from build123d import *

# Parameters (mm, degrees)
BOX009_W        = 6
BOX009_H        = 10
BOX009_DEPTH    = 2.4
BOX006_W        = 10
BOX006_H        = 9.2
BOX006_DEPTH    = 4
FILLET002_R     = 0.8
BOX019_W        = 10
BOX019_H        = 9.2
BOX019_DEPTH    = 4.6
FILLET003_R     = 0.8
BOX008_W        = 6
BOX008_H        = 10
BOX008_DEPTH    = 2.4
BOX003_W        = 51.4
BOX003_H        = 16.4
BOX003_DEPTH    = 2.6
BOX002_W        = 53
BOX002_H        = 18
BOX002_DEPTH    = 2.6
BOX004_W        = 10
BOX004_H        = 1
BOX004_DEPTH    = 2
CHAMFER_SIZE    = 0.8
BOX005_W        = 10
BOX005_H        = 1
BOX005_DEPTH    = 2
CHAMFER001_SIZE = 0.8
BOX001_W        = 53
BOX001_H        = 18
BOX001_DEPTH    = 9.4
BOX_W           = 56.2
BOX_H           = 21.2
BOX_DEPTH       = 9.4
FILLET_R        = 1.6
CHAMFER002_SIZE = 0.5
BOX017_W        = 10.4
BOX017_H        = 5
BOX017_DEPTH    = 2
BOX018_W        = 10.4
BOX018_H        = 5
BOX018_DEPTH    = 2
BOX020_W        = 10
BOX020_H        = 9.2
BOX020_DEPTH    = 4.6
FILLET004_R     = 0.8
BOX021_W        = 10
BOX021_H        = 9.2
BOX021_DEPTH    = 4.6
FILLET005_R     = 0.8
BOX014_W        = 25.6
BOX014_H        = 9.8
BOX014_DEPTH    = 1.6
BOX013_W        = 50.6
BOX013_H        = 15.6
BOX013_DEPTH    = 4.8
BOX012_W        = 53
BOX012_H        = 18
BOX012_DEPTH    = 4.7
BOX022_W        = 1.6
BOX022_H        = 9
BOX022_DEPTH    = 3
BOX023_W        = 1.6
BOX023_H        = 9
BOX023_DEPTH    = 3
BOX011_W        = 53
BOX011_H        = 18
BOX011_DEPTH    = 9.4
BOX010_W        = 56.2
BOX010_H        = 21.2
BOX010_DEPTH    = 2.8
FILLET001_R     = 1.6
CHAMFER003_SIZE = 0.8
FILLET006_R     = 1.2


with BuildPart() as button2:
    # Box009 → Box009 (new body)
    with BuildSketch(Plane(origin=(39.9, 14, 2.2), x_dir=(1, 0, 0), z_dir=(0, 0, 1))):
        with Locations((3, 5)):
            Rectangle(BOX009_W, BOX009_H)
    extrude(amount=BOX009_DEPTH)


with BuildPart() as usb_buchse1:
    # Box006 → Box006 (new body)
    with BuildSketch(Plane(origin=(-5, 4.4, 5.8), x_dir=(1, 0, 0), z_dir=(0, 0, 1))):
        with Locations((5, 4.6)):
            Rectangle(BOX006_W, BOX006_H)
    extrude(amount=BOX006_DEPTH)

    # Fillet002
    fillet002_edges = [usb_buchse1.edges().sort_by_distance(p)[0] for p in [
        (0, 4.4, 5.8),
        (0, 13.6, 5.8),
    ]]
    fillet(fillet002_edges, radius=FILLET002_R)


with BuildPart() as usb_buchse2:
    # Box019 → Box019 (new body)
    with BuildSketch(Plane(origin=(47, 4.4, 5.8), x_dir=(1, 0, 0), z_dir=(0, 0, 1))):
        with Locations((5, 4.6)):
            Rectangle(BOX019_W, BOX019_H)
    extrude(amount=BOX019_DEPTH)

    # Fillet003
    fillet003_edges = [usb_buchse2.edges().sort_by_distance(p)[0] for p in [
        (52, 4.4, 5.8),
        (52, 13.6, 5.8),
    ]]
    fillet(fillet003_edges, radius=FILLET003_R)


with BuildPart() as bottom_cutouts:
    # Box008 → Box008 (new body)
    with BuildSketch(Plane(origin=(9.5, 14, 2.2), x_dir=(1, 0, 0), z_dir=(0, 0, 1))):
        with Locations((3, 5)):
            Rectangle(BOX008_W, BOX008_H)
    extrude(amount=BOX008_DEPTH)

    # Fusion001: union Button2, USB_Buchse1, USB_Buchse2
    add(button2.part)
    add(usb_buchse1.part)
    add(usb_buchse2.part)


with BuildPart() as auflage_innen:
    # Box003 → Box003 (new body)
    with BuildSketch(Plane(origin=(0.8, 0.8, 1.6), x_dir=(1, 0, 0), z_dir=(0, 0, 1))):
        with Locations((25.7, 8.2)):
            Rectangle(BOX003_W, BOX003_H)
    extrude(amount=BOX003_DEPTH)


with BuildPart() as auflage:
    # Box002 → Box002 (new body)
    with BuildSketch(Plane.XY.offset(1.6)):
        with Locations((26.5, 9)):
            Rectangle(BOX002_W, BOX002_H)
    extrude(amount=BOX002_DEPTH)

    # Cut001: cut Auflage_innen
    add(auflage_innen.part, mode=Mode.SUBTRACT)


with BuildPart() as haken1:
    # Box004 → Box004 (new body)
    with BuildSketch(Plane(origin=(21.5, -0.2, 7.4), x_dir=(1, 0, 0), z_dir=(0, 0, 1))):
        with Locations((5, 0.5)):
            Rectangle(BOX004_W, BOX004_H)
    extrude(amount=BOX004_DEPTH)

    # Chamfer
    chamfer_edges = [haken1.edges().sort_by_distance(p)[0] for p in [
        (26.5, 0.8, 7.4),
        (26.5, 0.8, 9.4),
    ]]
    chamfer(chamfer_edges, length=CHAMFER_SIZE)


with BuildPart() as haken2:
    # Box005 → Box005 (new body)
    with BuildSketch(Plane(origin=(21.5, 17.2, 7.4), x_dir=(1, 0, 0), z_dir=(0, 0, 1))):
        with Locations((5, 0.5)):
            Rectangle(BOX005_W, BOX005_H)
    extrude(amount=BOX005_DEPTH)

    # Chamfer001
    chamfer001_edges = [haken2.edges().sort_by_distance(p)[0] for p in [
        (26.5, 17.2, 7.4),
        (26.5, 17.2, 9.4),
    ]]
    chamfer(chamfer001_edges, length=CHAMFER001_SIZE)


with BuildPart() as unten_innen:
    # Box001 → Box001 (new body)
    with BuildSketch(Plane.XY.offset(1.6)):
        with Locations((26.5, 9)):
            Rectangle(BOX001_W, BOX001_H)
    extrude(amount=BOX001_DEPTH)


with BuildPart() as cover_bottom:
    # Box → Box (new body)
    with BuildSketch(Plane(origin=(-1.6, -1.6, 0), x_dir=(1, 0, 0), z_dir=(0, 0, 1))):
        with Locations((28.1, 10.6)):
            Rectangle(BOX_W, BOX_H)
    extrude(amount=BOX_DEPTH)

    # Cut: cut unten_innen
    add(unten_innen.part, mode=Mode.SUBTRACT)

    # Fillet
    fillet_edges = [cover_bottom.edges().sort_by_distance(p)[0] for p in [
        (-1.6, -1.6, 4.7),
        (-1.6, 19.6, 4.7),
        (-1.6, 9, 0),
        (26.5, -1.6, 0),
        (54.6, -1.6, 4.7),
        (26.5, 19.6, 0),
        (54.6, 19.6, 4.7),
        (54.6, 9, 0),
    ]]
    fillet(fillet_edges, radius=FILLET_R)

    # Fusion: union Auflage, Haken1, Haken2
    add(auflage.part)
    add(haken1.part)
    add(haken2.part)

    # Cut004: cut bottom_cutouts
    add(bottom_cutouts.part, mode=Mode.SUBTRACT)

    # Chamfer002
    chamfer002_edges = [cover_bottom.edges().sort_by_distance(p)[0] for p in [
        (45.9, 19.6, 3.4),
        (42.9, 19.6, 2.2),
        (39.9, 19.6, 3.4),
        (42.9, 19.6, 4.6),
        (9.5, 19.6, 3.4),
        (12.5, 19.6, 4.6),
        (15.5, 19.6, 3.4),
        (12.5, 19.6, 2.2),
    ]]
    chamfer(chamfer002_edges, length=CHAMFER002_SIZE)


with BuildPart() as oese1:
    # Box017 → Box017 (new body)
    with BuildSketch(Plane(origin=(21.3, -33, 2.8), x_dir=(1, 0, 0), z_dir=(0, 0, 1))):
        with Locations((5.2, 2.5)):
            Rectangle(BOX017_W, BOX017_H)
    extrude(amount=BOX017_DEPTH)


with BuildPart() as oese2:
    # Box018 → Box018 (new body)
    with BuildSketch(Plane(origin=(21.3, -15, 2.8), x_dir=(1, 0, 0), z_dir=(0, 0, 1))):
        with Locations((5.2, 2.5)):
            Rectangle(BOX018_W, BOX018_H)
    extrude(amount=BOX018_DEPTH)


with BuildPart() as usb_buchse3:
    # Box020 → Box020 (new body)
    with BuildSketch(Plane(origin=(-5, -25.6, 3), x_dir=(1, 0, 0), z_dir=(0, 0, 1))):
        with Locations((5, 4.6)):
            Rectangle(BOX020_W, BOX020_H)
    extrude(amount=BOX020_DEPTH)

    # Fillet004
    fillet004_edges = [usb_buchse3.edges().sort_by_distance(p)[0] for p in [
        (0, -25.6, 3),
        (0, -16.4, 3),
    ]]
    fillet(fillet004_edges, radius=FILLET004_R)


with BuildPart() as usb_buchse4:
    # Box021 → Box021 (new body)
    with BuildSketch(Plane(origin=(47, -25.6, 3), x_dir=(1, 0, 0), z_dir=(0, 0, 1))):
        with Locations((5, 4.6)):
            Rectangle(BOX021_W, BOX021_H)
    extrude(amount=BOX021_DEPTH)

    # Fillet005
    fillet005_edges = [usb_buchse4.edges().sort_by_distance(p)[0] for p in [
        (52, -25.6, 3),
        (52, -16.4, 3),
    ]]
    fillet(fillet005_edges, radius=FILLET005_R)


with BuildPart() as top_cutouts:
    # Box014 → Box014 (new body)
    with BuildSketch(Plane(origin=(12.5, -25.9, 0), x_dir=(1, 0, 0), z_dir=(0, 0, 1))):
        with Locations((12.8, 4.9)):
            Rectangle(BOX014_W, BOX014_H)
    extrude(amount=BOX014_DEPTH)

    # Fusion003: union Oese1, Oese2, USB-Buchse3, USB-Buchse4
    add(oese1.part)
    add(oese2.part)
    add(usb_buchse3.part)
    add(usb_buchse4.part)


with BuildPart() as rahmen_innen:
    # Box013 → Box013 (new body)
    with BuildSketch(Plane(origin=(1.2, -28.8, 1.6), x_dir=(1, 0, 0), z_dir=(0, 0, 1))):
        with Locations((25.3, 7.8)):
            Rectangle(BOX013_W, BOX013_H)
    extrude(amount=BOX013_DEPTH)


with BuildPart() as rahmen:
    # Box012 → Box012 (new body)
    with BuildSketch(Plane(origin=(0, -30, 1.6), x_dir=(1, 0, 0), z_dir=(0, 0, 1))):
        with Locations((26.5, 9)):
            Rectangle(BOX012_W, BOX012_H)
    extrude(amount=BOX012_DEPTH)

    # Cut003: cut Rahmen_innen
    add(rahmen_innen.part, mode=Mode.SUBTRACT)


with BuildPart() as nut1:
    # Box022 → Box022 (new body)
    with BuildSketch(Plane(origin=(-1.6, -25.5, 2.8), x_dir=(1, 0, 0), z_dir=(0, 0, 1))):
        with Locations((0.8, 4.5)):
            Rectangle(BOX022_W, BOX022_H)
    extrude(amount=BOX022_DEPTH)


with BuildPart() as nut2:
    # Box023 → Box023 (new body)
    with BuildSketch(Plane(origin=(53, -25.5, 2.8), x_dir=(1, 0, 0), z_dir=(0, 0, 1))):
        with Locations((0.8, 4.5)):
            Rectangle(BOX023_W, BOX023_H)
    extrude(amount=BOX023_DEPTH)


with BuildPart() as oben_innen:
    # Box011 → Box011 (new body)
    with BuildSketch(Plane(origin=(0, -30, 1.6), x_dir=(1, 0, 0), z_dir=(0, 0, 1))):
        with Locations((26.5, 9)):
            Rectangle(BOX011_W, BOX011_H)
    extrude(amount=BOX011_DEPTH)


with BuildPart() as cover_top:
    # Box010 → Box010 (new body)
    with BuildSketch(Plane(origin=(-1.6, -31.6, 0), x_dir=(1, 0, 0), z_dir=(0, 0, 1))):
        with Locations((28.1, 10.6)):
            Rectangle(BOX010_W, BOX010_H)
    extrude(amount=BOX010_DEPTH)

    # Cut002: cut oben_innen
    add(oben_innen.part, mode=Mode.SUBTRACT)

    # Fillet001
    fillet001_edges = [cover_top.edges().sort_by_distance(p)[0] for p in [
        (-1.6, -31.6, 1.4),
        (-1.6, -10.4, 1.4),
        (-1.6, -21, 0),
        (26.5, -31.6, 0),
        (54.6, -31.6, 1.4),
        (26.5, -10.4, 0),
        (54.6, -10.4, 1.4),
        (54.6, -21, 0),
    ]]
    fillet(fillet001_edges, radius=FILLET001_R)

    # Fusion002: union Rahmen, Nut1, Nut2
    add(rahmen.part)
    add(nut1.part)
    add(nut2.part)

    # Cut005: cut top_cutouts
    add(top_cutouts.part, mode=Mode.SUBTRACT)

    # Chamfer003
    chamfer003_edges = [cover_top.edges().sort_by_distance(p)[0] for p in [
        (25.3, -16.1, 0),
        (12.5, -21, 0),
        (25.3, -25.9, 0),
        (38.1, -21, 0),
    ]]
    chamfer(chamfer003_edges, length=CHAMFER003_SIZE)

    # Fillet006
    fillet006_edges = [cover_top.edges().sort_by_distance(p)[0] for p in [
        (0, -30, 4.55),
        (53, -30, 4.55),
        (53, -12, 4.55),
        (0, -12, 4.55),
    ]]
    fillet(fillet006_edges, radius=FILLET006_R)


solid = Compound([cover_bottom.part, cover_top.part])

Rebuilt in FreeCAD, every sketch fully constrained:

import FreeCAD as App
import Part
import Sketcher

V = App.Vector


def edges_at(feature, points):
    """Names of the edges that pass closest to the given points."""
    edges = feature.Shape.Edges
    near = lambda p: min(range(len(edges)), key=lambda i: edges[i].distToShape(Part.Vertex(*p))[0])
    return sorted({f"Edge{near(p) + 1}" for p in points})


def add_polygon(sketch, points):
    """Adds a closed chain of lines whose ends are joined by coincident constraints."""
    first, n = sketch.GeometryCount, len(points)
    for a, b in zip(points, points[1:] + points[:1]):
        sketch.addGeometry(Part.LineSegment(App.Vector(*a, 0), App.Vector(*b, 0)), False)
    for i in range(n):
        sketch.addConstraint(Sketcher.Constraint("Coincident", first + i, 2, first + (i + 1) % n, 1))

doc = App.newDocument("Part")
params = doc.addObject("Spreadsheet::Sheet", "Params")
for row, (alias, value) in enumerate([
    ("sketch1_width", "6 mm"),
    ("sketch1_height", "10 mm"),
    ("pad1_length", "2.4 mm"),
    ("sketch2_width", "10 mm"),
    ("sketch2_height", "9.2 mm"),
    ("pad2_length", "4 mm"),
    ("fillet_radius", "0.8 mm"),
    ("sketch3_width", "10 mm"),
    ("sketch3_height", "9.2 mm"),
    ("pad3_length", "4.6 mm"),
    ("fillet2_radius", "0.8 mm"),
    ("sketch4_width", "6 mm"),
    ("sketch4_height", "10 mm"),
    ("pad4_length", "2.4 mm"),
    ("sketch5_width", "51.4 mm"),
    ("sketch5_height", "16.4 mm"),
    ("pad5_length", "2.6 mm"),
    ("sketch6_width", "53 mm"),
    ("sketch6_height", "18 mm"),
    ("pad6_length", "2.6 mm"),
    ("sketch7_width", "10 mm"),
    ("sketch7_height", "1 mm"),
    ("pad7_length", "2 mm"),
    ("chamfer_size", "0.8 mm"),
    ("sketch8_width", "10 mm"),
    ("sketch8_height", "1 mm"),
    ("pad8_length", "2 mm"),
    ("chamfer2_size", "0.8 mm"),
    ("sketch9_width", "53 mm"),
    ("sketch9_height", "18 mm"),
    ("pad9_length", "9.4 mm"),
    ("sketch10_width", "56.2 mm"),
    ("sketch10_height", "21.2 mm"),
    ("pad10_length", "9.4 mm"),
    ("fillet3_radius", "1.6 mm"),
    ("chamfer3_size", "0.5 mm"),
    ("sketch11_height", "5 mm"),
    ("sketch11_width", "10.4 mm"),
    ("pad11_length", "2 mm"),
    ("sketch12_height", "5 mm"),
    ("sketch12_width", "10.4 mm"),
    ("pad12_length", "2 mm"),
    ("sketch13_width", "10 mm"),
    ("sketch13_height", "9.2 mm"),
    ("pad13_length", "4.6 mm"),
    ("fillet4_radius", "0.8 mm"),
    ("sketch14_width", "10 mm"),
    ("sketch14_height", "9.2 mm"),
    ("pad14_length", "4.6 mm"),
    ("fillet5_radius", "0.8 mm"),
    ("sketch15_width", "25.6 mm"),
    ("sketch15_height", "9.8 mm"),
    ("pad15_length", "1.6 mm"),
    ("sketch16_width", "50.6 mm"),
    ("sketch16_height", "15.6 mm"),
    ("pad16_length", "4.8 mm"),
    ("sketch17_width", "53 mm"),
    ("sketch17_height", "18 mm"),
    ("pad17_length", "4.7 mm"),
    ("sketch18_height", "9 mm"),
    ("sketch18_width", "1.6 mm"),
    ("pad18_length", "3 mm"),
    ("sketch19_height", "9 mm"),
    ("sketch19_width", "1.6 mm"),
    ("pad19_length", "3 mm"),
    ("sketch20_width", "53 mm"),
    ("sketch20_height", "18 mm"),
    ("pad20_length", "9.4 mm"),
    ("sketch21_width", "56.2 mm"),
    ("sketch21_height", "21.2 mm"),
    ("pad21_length", "2.8 mm"),
    ("fillet6_radius", "1.6 mm"),
    ("chamfer4_size", "0.8 mm"),
    ("fillet7_radius", "1.2 mm"),
], start=1):
    params.set(f"A{row}", alias)
    params.set(f"B{row}", "=" + value)
    params.setAlias(f"B{row}", alias)

body = doc.addObject("PartDesign::Body", "Body")

# Sketch on XY plane
sketch1 = doc.addObject("Sketcher::SketchObject", "Sketch")
body.addObject(sketch1)
sketch1.AttachmentSupport = (doc.XY_Plane, [""])
sketch1.MapMode = "FlatFace"
sketch1.AttachmentOffset = App.Placement(V(0, 0, 2.2), App.Rotation())
add_polygon(sketch1, [(39.9, 24), (39.9, 14), (45.9, 14), (45.9, 24)])  # lines 0-3
sketch1.addConstraint(Sketcher.Constraint("Vertical", 0))
sketch1.addConstraint(Sketcher.Constraint("Horizontal", 1))
sketch1.addConstraint(Sketcher.Constraint("Vertical", 2))
sketch1.addConstraint(Sketcher.Constraint("Horizontal", 3))
sketch1.addConstraint(Sketcher.Constraint("DistanceX", 1, 1, 1, 2, 6.0))
sketch1.addConstraint(Sketcher.Constraint("DistanceY", 0, 2, 0, 1, 10.0))
sketch1.addConstraint(Sketcher.Constraint("DistanceY", -1, 1, 0, 2, 14.0))
sketch1.addConstraint(Sketcher.Constraint("DistanceX", -1, 1, 0, 2, 39.9))
sketch1.setExpression("Constraints[8]", "Params.sketch1_width")
sketch1.setExpression("Constraints[9]", "Params.sketch1_height")
pad1 = doc.addObject("PartDesign::Pad", "Pad")
body.addObject(pad1)
pad1.Profile = sketch1
pad1.setExpression("Length", "Params.pad1_length")
body2 = doc.addObject("PartDesign::Body", "Body001")

# Sketch on XY plane
sketch2 = doc.addObject("Sketcher::SketchObject", "Sketch001")
body2.addObject(sketch2)
sketch2.AttachmentSupport = (doc.getObject("XY_Plane001"), [""])
sketch2.MapMode = "FlatFace"
sketch2.AttachmentOffset = App.Placement(V(0, 0, 5.8), App.Rotation())
add_polygon(sketch2, [(-5, 13.6), (-5, 4.4), (5, 4.4), (5, 13.6)])  # lines 0-3
sketch2.addConstraint(Sketcher.Constraint("Vertical", 0))
sketch2.addConstraint(Sketcher.Constraint("Horizontal", 1))
sketch2.addConstraint(Sketcher.Constraint("Vertical", 2))
sketch2.addConstraint(Sketcher.Constraint("Horizontal", 3))
sketch2.addConstraint(Sketcher.Constraint("DistanceX", 1, 1, 1, 2, 10.0))
sketch2.addConstraint(Sketcher.Constraint("DistanceY", 0, 2, 0, 1, 9.2))
sketch2.addConstraint(Sketcher.Constraint("DistanceX", 0, 2, -1, 1, 5.0))
sketch2.addConstraint(Sketcher.Constraint("DistanceY", -1, 1, 0, 2, 4.4))
sketch2.setExpression("Constraints[8]", "Params.sketch2_width")
sketch2.setExpression("Constraints[9]", "Params.sketch2_height")
pad2 = doc.addObject("PartDesign::Pad", "Pad001")
body2.addObject(pad2)
pad2.Profile = sketch2
pad2.setExpression("Length", "Params.pad2_length")
doc.recompute()

fillet = doc.addObject("PartDesign::Fillet", "Fillet")
body2.addObject(fillet)
fillet.Base = (pad2, edges_at(pad2, [(0, 4.4, 5.8), (0, 13.6, 5.8)]))
fillet.setExpression("Radius", "Params.fillet_radius")
body3 = doc.addObject("PartDesign::Body", "Body002")

# Sketch on XY plane
sketch3 = doc.addObject("Sketcher::SketchObject", "Sketch002")
body3.addObject(sketch3)
sketch3.AttachmentSupport = (doc.getObject("XY_Plane002"), [""])
sketch3.MapMode = "FlatFace"
sketch3.AttachmentOffset = App.Placement(V(0, 0, 5.8), App.Rotation())
add_polygon(sketch3, [(47, 13.6), (47, 4.4), (57, 4.4), (57, 13.6)])  # lines 0-3
sketch3.addConstraint(Sketcher.Constraint("Vertical", 0))
sketch3.addConstraint(Sketcher.Constraint("Horizontal", 1))
sketch3.addConstraint(Sketcher.Constraint("Vertical", 2))
sketch3.addConstraint(Sketcher.Constraint("Horizontal", 3))
sketch3.addConstraint(Sketcher.Constraint("DistanceX", 1, 1, 1, 2, 10.0))
sketch3.addConstraint(Sketcher.Constraint("DistanceY", 0, 2, 0, 1, 9.2))
sketch3.addConstraint(Sketcher.Constraint("DistanceX", -1, 1, 0, 2, 47.0))
sketch3.addConstraint(Sketcher.Constraint("DistanceY", -1, 1, 0, 2, 4.4))
sketch3.setExpression("Constraints[8]", "Params.sketch3_width")
sketch3.setExpression("Constraints[9]", "Params.sketch3_height")
pad3 = doc.addObject("PartDesign::Pad", "Pad002")
body3.addObject(pad3)
pad3.Profile = sketch3
pad3.setExpression("Length", "Params.pad3_length")
doc.recompute()

fillet2 = doc.addObject("PartDesign::Fillet", "Fillet001")
body3.addObject(fillet2)
fillet2.Base = (pad3, edges_at(pad3, [(52, 4.4, 5.8), (52, 13.6, 5.8)]))
fillet2.setExpression("Radius", "Params.fillet2_radius")
body4 = doc.addObject("PartDesign::Body", "Body003")
body4.AllowCompound = True

# Sketch on XY plane
sketch4 = doc.addObject("Sketcher::SketchObject", "Sketch003")
body4.addObject(sketch4)
sketch4.AttachmentSupport = (doc.getObject("XY_Plane003"), [""])
sketch4.MapMode = "FlatFace"
sketch4.AttachmentOffset = App.Placement(V(0, 0, 2.2), App.Rotation())
add_polygon(sketch4, [(9.5, 24), (9.5, 14), (15.5, 14), (15.5, 24)])  # lines 0-3
sketch4.addConstraint(Sketcher.Constraint("Vertical", 0))
sketch4.addConstraint(Sketcher.Constraint("Horizontal", 1))
sketch4.addConstraint(Sketcher.Constraint("Vertical", 2))
sketch4.addConstraint(Sketcher.Constraint("Horizontal", 3))
sketch4.addConstraint(Sketcher.Constraint("DistanceX", 1, 1, 1, 2, 6.0))
sketch4.addConstraint(Sketcher.Constraint("DistanceY", 0, 2, 0, 1, 10.0))
sketch4.addConstraint(Sketcher.Constraint("DistanceY", -1, 1, 0, 2, 14.0))
sketch4.addConstraint(Sketcher.Constraint("DistanceX", -1, 1, 0, 2, 9.5))
sketch4.setExpression("Constraints[8]", "Params.sketch4_width")
sketch4.setExpression("Constraints[9]", "Params.sketch4_height")
pad4 = doc.addObject("PartDesign::Pad", "Pad003")
body4.addObject(pad4)
pad4.Profile = sketch4
pad4.setExpression("Length", "Params.pad4_length")
doc.recompute()

boolean = doc.addObject("PartDesign::Boolean", "Boolean")
body4.addObject(boolean)
boolean.Type = "Fuse"
boolean.addObjects([body])
doc.recompute()

boolean2 = doc.addObject("PartDesign::Boolean", "Boolean001")
body4.addObject(boolean2)
boolean2.Type = "Fuse"
boolean2.addObjects([body2])
doc.recompute()

boolean3 = doc.addObject("PartDesign::Boolean", "Boolean002")
body4.addObject(boolean3)
boolean3.Type = "Fuse"
boolean3.addObjects([body3])
body5 = doc.addObject("PartDesign::Body", "Body004")

# Sketch on XY plane
sketch5 = doc.addObject("Sketcher::SketchObject", "Sketch004")
body5.addObject(sketch5)
sketch5.AttachmentSupport = (doc.getObject("XY_Plane004"), [""])
sketch5.MapMode = "FlatFace"
sketch5.AttachmentOffset = App.Placement(V(0, 0, 1.6), App.Rotation())
add_polygon(sketch5, [(0.8, 17.2), (0.8, 0.8), (52.2, 0.8), (52.2, 17.2)])  # lines 0-3
sketch5.addConstraint(Sketcher.Constraint("Vertical", 0))
sketch5.addConstraint(Sketcher.Constraint("Horizontal", 1))
sketch5.addConstraint(Sketcher.Constraint("Vertical", 2))
sketch5.addConstraint(Sketcher.Constraint("Horizontal", 3))
sketch5.addConstraint(Sketcher.Constraint("DistanceX", 1, 1, 1, 2, 51.4))
sketch5.addConstraint(Sketcher.Constraint("DistanceY", 0, 2, 0, 1, 16.4))
sketch5.addConstraint(Sketcher.Constraint("DistanceX", -1, 1, 0, 2, 0.8))
sketch5.addConstraint(Sketcher.Constraint("DistanceY", -1, 1, 0, 2, 0.8))
sketch5.setExpression("Constraints[8]", "Params.sketch5_width")
sketch5.setExpression("Constraints[9]", "Params.sketch5_height")
pad5 = doc.addObject("PartDesign::Pad", "Pad004")
body5.addObject(pad5)
pad5.Profile = sketch5
pad5.setExpression("Length", "Params.pad5_length")
body6 = doc.addObject("PartDesign::Body", "Body005")

# Sketch on XY plane
sketch6 = doc.addObject("Sketcher::SketchObject", "Sketch005")
body6.addObject(sketch6)
sketch6.AttachmentSupport = (doc.getObject("XY_Plane005"), [""])
sketch6.MapMode = "FlatFace"
sketch6.AttachmentOffset = App.Placement(V(0, 0, 1.6), App.Rotation())
add_polygon(sketch6, [(0, 18), (0, 0), (53, 0), (53, 18)])  # lines 0-3
sketch6.addConstraint(Sketcher.Constraint("Vertical", 0))
sketch6.addConstraint(Sketcher.Constraint("Horizontal", 1))
sketch6.addConstraint(Sketcher.Constraint("Vertical", 2))
sketch6.addConstraint(Sketcher.Constraint("Horizontal", 3))
sketch6.addConstraint(Sketcher.Constraint("Coincident", 0, 2, -1, 1))
sketch6.addConstraint(Sketcher.Constraint("DistanceX", 1, 1, 1, 2, 53.0))
sketch6.addConstraint(Sketcher.Constraint("DistanceY", 0, 2, 0, 1, 18.0))
sketch6.setExpression("Constraints[9]", "Params.sketch6_width")
sketch6.setExpression("Constraints[10]", "Params.sketch6_height")
pad6 = doc.addObject("PartDesign::Pad", "Pad005")
body6.addObject(pad6)
pad6.Profile = sketch6
pad6.setExpression("Length", "Params.pad6_length")
doc.recompute()

boolean4 = doc.addObject("PartDesign::Boolean", "Boolean003")
body6.addObject(boolean4)
boolean4.Type = "Cut"
boolean4.addObjects([body5])
body7 = doc.addObject("PartDesign::Body", "Body006")

# Sketch on XY plane
sketch7 = doc.addObject("Sketcher::SketchObject", "Sketch006")
body7.addObject(sketch7)
sketch7.AttachmentSupport = (doc.getObject("XY_Plane006"), [""])
sketch7.MapMode = "FlatFace"
sketch7.AttachmentOffset = App.Placement(V(0, 0, 7.4), App.Rotation())
add_polygon(sketch7, [(21.5, 0.8), (21.5, -0.2), (31.5, -0.2), (31.5, 0.8)])  # lines 0-3
sketch7.addConstraint(Sketcher.Constraint("Vertical", 0))
sketch7.addConstraint(Sketcher.Constraint("Horizontal", 1))
sketch7.addConstraint(Sketcher.Constraint("Vertical", 2))
sketch7.addConstraint(Sketcher.Constraint("Horizontal", 3))
sketch7.addConstraint(Sketcher.Constraint("DistanceX", 1, 1, 1, 2, 10.0))
sketch7.addConstraint(Sketcher.Constraint("DistanceY", 0, 2, 0, 1, 1.0))
sketch7.addConstraint(Sketcher.Constraint("DistanceX", -1, 1, 0, 2, 21.5))
sketch7.addConstraint(Sketcher.Constraint("DistanceY", 0, 2, -1, 1, 0.2))
sketch7.setExpression("Constraints[8]", "Params.sketch7_width")
sketch7.setExpression("Constraints[9]", "Params.sketch7_height")
pad7 = doc.addObject("PartDesign::Pad", "Pad006")
body7.addObject(pad7)
pad7.Profile = sketch7
pad7.setExpression("Length", "Params.pad7_length")
doc.recompute()

chamfer = doc.addObject("PartDesign::Chamfer", "Chamfer")
body7.addObject(chamfer)
chamfer.Base = (pad7, edges_at(pad7, [(26.5, 0.8, 7.4), (26.5, 0.8, 9.4)]))
chamfer.setExpression("Size", "Params.chamfer_size")
body8 = doc.addObject("PartDesign::Body", "Body007")

# Sketch on XY plane
sketch8 = doc.addObject("Sketcher::SketchObject", "Sketch007")
body8.addObject(sketch8)
sketch8.AttachmentSupport = (doc.getObject("XY_Plane007"), [""])
sketch8.MapMode = "FlatFace"
sketch8.AttachmentOffset = App.Placement(V(0, 0, 7.4), App.Rotation())
add_polygon(sketch8, [(21.5, 18.2), (21.5, 17.2), (31.5, 17.2), (31.5, 18.2)])  # lines 0-3
sketch8.addConstraint(Sketcher.Constraint("Vertical", 0))
sketch8.addConstraint(Sketcher.Constraint("Horizontal", 1))
sketch8.addConstraint(Sketcher.Constraint("Vertical", 2))
sketch8.addConstraint(Sketcher.Constraint("Horizontal", 3))
sketch8.addConstraint(Sketcher.Constraint("DistanceX", 1, 1, 1, 2, 10.0))
sketch8.addConstraint(Sketcher.Constraint("DistanceY", 0, 2, 0, 1, 1.0))
sketch8.addConstraint(Sketcher.Constraint("DistanceX", -1, 1, 0, 2, 21.5))
sketch8.addConstraint(Sketcher.Constraint("DistanceY", -1, 1, 0, 2, 17.2))
sketch8.setExpression("Constraints[8]", "Params.sketch8_width")
sketch8.setExpression("Constraints[9]", "Params.sketch8_height")
pad8 = doc.addObject("PartDesign::Pad", "Pad007")
body8.addObject(pad8)
pad8.Profile = sketch8
pad8.setExpression("Length", "Params.pad8_length")
doc.recompute()

chamfer2 = doc.addObject("PartDesign::Chamfer", "Chamfer001")
body8.addObject(chamfer2)
chamfer2.Base = (pad8, edges_at(pad8, [(26.5, 17.2, 7.4), (26.5, 17.2, 9.4)]))
chamfer2.setExpression("Size", "Params.chamfer2_size")
body9 = doc.addObject("PartDesign::Body", "Body008")

# Sketch on XY plane
sketch9 = doc.addObject("Sketcher::SketchObject", "Sketch008")
body9.addObject(sketch9)
sketch9.AttachmentSupport = (doc.getObject("XY_Plane008"), [""])
sketch9.MapMode = "FlatFace"
sketch9.AttachmentOffset = App.Placement(V(0, 0, 1.6), App.Rotation())
add_polygon(sketch9, [(0, 18), (0, 0), (53, 0), (53, 18)])  # lines 0-3
sketch9.addConstraint(Sketcher.Constraint("Vertical", 0))
sketch9.addConstraint(Sketcher.Constraint("Horizontal", 1))
sketch9.addConstraint(Sketcher.Constraint("Vertical", 2))
sketch9.addConstraint(Sketcher.Constraint("Horizontal", 3))
sketch9.addConstraint(Sketcher.Constraint("Coincident", 0, 2, -1, 1))
sketch9.addConstraint(Sketcher.Constraint("DistanceX", 1, 1, 1, 2, 53.0))
sketch9.addConstraint(Sketcher.Constraint("DistanceY", 0, 2, 0, 1, 18.0))
sketch9.setExpression("Constraints[9]", "Params.sketch9_width")
sketch9.setExpression("Constraints[10]", "Params.sketch9_height")
pad9 = doc.addObject("PartDesign::Pad", "Pad008")
body9.addObject(pad9)
pad9.Profile = sketch9
pad9.setExpression("Length", "Params.pad9_length")
body10 = doc.addObject("PartDesign::Body", "Body009")

# Sketch on XY plane
sketch10 = doc.addObject("Sketcher::SketchObject", "Sketch009")
body10.addObject(sketch10)
sketch10.AttachmentSupport = (doc.getObject("XY_Plane009"), [""])
sketch10.MapMode = "FlatFace"
add_polygon(sketch10, [(-1.6, 19.6), (-1.6, -1.6), (54.6, -1.6), (54.6, 19.6)])  # lines 0-3
sketch10.addConstraint(Sketcher.Constraint("Vertical", 0))
sketch10.addConstraint(Sketcher.Constraint("Horizontal", 1))
sketch10.addConstraint(Sketcher.Constraint("Vertical", 2))
sketch10.addConstraint(Sketcher.Constraint("Horizontal", 3))
sketch10.addConstraint(Sketcher.Constraint("DistanceX", 1, 1, 1, 2, 56.2))
sketch10.addConstraint(Sketcher.Constraint("DistanceY", 0, 2, 0, 1, 21.2))
sketch10.addConstraint(Sketcher.Constraint("DistanceX", 0, 2, -1, 1, 1.6))
sketch10.addConstraint(Sketcher.Constraint("DistanceY", 0, 2, -1, 1, 1.6))
sketch10.setExpression("Constraints[8]", "Params.sketch10_width")
sketch10.setExpression("Constraints[9]", "Params.sketch10_height")
pad10 = doc.addObject("PartDesign::Pad", "Pad009")
body10.addObject(pad10)
pad10.Profile = sketch10
pad10.setExpression("Length", "Params.pad10_length")
doc.recompute()

boolean5 = doc.addObject("PartDesign::Boolean", "Boolean004")
body10.addObject(boolean5)
boolean5.Type = "Cut"
boolean5.addObjects([body9])
doc.recompute()

fillet3 = doc.addObject("PartDesign::Fillet", "Fillet002")
body10.addObject(fillet3)
fillet3.Base = (boolean5, edges_at(boolean5, [
    (-1.6, -1.6, 4.7),
    (-1.6, 19.6, 4.7),
    (-1.6, 9, 0),
    (26.5, -1.6, 0),
    (54.6, -1.6, 4.7),
    (26.5, 19.6, 0),
    (54.6, 19.6, 4.7),
    (54.6, 9, 0),
]))
fillet3.setExpression("Radius", "Params.fillet3_radius")
doc.recompute()

boolean6 = doc.addObject("PartDesign::Boolean", "Boolean005")
body10.addObject(boolean6)
boolean6.Type = "Fuse"
boolean6.addObjects([body6])
doc.recompute()

boolean7 = doc.addObject("PartDesign::Boolean", "Boolean006")
body10.addObject(boolean7)
boolean7.Type = "Fuse"
boolean7.addObjects([body7])
doc.recompute()

boolean8 = doc.addObject("PartDesign::Boolean", "Boolean007")
body10.addObject(boolean8)
boolean8.Type = "Fuse"
boolean8.addObjects([body8])
doc.recompute()

boolean9 = doc.addObject("PartDesign::Boolean", "Boolean008")
body10.addObject(boolean9)
boolean9.Type = "Cut"
boolean9.addObjects([body4])
doc.recompute()

chamfer3 = doc.addObject("PartDesign::Chamfer", "Chamfer002")
body10.addObject(chamfer3)
chamfer3.Base = (boolean9, edges_at(boolean9, [
    (45.9, 19.6, 3.4),
    (42.9, 19.6, 2.2),
    (39.9, 19.6, 3.4),
    (42.9, 19.6, 4.6),
    (9.5, 19.6, 3.4),
    (12.5, 19.6, 4.6),
    (15.5, 19.6, 3.4),
    (12.5, 19.6, 2.2),
]))
chamfer3.setExpression("Size", "Params.chamfer3_size")
body11 = doc.addObject("PartDesign::Body", "Body010")

# Sketch on XY plane
sketch11 = doc.addObject("Sketcher::SketchObject", "Sketch010")
body11.addObject(sketch11)
sketch11.AttachmentSupport = (doc.getObject("XY_Plane010"), [""])
sketch11.MapMode = "FlatFace"
sketch11.AttachmentOffset = App.Placement(V(0, 0, 2.8), App.Rotation())
add_polygon(sketch11, [(21.3, -28), (21.3, -33), (31.7, -33), (31.7, -28)])  # lines 0-3
sketch11.addConstraint(Sketcher.Constraint("Vertical", 0))
sketch11.addConstraint(Sketcher.Constraint("Horizontal", 1))
sketch11.addConstraint(Sketcher.Constraint("Vertical", 2))
sketch11.addConstraint(Sketcher.Constraint("Horizontal", 3))
sketch11.addConstraint(Sketcher.Constraint("DistanceY", 0, 2, 0, 1, 5.0))
sketch11.addConstraint(Sketcher.Constraint("DistanceX", 1, 1, 1, 2, 10.4))
sketch11.addConstraint(Sketcher.Constraint("DistanceY", 0, 2, -1, 1, 33.0))
sketch11.addConstraint(Sketcher.Constraint("DistanceX", -1, 1, 0, 2, 21.3))
sketch11.setExpression("Constraints[8]", "Params.sketch11_height")
sketch11.setExpression("Constraints[9]", "Params.sketch11_width")
pad11 = doc.addObject("PartDesign::Pad", "Pad010")
body11.addObject(pad11)
pad11.Profile = sketch11
pad11.setExpression("Length", "Params.pad11_length")
body12 = doc.addObject("PartDesign::Body", "Body011")

# Sketch on XY plane
sketch12 = doc.addObject("Sketcher::SketchObject", "Sketch011")
body12.addObject(sketch12)
sketch12.AttachmentSupport = (doc.getObject("XY_Plane011"), [""])
sketch12.MapMode = "FlatFace"
sketch12.AttachmentOffset = App.Placement(V(0, 0, 2.8), App.Rotation())
add_polygon(sketch12, [(21.3, -10), (21.3, -15), (31.7, -15), (31.7, -10)])  # lines 0-3
sketch12.addConstraint(Sketcher.Constraint("Vertical", 0))
sketch12.addConstraint(Sketcher.Constraint("Horizontal", 1))
sketch12.addConstraint(Sketcher.Constraint("Vertical", 2))
sketch12.addConstraint(Sketcher.Constraint("Horizontal", 3))
sketch12.addConstraint(Sketcher.Constraint("DistanceY", 0, 2, 0, 1, 5.0))
sketch12.addConstraint(Sketcher.Constraint("DistanceX", 1, 1, 1, 2, 10.4))
sketch12.addConstraint(Sketcher.Constraint("DistanceY", 0, 2, -1, 1, 15.0))
sketch12.addConstraint(Sketcher.Constraint("DistanceX", -1, 1, 0, 2, 21.3))
sketch12.setExpression("Constraints[8]", "Params.sketch12_height")
sketch12.setExpression("Constraints[9]", "Params.sketch12_width")
pad12 = doc.addObject("PartDesign::Pad", "Pad011")
body12.addObject(pad12)
pad12.Profile = sketch12
pad12.setExpression("Length", "Params.pad12_length")
body13 = doc.addObject("PartDesign::Body", "Body012")

# Sketch on XY plane
sketch13 = doc.addObject("Sketcher::SketchObject", "Sketch012")
body13.addObject(sketch13)
sketch13.AttachmentSupport = (doc.getObject("XY_Plane012"), [""])
sketch13.MapMode = "FlatFace"
sketch13.AttachmentOffset = App.Placement(V(0, 0, 3), App.Rotation())
add_polygon(sketch13, [(-5, -16.4), (-5, -25.6), (5, -25.6), (5, -16.4)])  # lines 0-3
sketch13.addConstraint(Sketcher.Constraint("Vertical", 0))
sketch13.addConstraint(Sketcher.Constraint("Horizontal", 1))
sketch13.addConstraint(Sketcher.Constraint("Vertical", 2))
sketch13.addConstraint(Sketcher.Constraint("Horizontal", 3))
sketch13.addConstraint(Sketcher.Constraint("DistanceX", 1, 1, 1, 2, 10.0))
sketch13.addConstraint(Sketcher.Constraint("DistanceY", 0, 2, 0, 1, 9.2))
sketch13.addConstraint(Sketcher.Constraint("DistanceX", 0, 2, -1, 1, 5.0))
sketch13.addConstraint(Sketcher.Constraint("DistanceY", 0, 2, -1, 1, 25.6))
sketch13.setExpression("Constraints[8]", "Params.sketch13_width")
sketch13.setExpression("Constraints[9]", "Params.sketch13_height")
pad13 = doc.addObject("PartDesign::Pad", "Pad012")
body13.addObject(pad13)
pad13.Profile = sketch13
pad13.setExpression("Length", "Params.pad13_length")
doc.recompute()

fillet4 = doc.addObject("PartDesign::Fillet", "Fillet003")
body13.addObject(fillet4)
fillet4.Base = (pad13, edges_at(pad13, [(0, -25.6, 3), (0, -16.4, 3)]))
fillet4.setExpression("Radius", "Params.fillet4_radius")
body14 = doc.addObject("PartDesign::Body", "Body013")

# Sketch on XY plane
sketch14 = doc.addObject("Sketcher::SketchObject", "Sketch013")
body14.addObject(sketch14)
sketch14.AttachmentSupport = (doc.getObject("XY_Plane013"), [""])
sketch14.MapMode = "FlatFace"
sketch14.AttachmentOffset = App.Placement(V(0, 0, 3), App.Rotation())
add_polygon(sketch14, [(47, -16.4), (47, -25.6), (57, -25.6), (57, -16.4)])  # lines 0-3
sketch14.addConstraint(Sketcher.Constraint("Vertical", 0))
sketch14.addConstraint(Sketcher.Constraint("Horizontal", 1))
sketch14.addConstraint(Sketcher.Constraint("Vertical", 2))
sketch14.addConstraint(Sketcher.Constraint("Horizontal", 3))
sketch14.addConstraint(Sketcher.Constraint("DistanceX", 1, 1, 1, 2, 10.0))
sketch14.addConstraint(Sketcher.Constraint("DistanceY", 0, 2, 0, 1, 9.2))
sketch14.addConstraint(Sketcher.Constraint("DistanceX", -1, 1, 0, 2, 47.0))
sketch14.addConstraint(Sketcher.Constraint("DistanceY", 0, 2, -1, 1, 25.6))
sketch14.setExpression("Constraints[8]", "Params.sketch14_width")
sketch14.setExpression("Constraints[9]", "Params.sketch14_height")
pad14 = doc.addObject("PartDesign::Pad", "Pad013")
body14.addObject(pad14)
pad14.Profile = sketch14
pad14.setExpression("Length", "Params.pad14_length")
doc.recompute()

fillet5 = doc.addObject("PartDesign::Fillet", "Fillet004")
body14.addObject(fillet5)
fillet5.Base = (pad14, edges_at(pad14, [(52, -25.6, 3), (52, -16.4, 3)]))
fillet5.setExpression("Radius", "Params.fillet5_radius")
body15 = doc.addObject("PartDesign::Body", "Body014")
body15.AllowCompound = True

# Sketch on XY plane
sketch15 = doc.addObject("Sketcher::SketchObject", "Sketch014")
body15.addObject(sketch15)
sketch15.AttachmentSupport = (doc.getObject("XY_Plane014"), [""])
sketch15.MapMode = "FlatFace"
add_polygon(sketch15, [(12.5, -16.1), (12.5, -25.9), (38.1, -25.9), (38.1, -16.1)])  # lines 0-3
sketch15.addConstraint(Sketcher.Constraint("Vertical", 0))
sketch15.addConstraint(Sketcher.Constraint("Horizontal", 1))
sketch15.addConstraint(Sketcher.Constraint("Vertical", 2))
sketch15.addConstraint(Sketcher.Constraint("Horizontal", 3))
sketch15.addConstraint(Sketcher.Constraint("DistanceX", 1, 1, 1, 2, 25.6))
sketch15.addConstraint(Sketcher.Constraint("DistanceY", 0, 2, 0, 1, 9.8))
sketch15.addConstraint(Sketcher.Constraint("DistanceX", -1, 1, 0, 2, 12.5))
sketch15.addConstraint(Sketcher.Constraint("DistanceY", 0, 2, -1, 1, 25.9))
sketch15.setExpression("Constraints[8]", "Params.sketch15_width")
sketch15.setExpression("Constraints[9]", "Params.sketch15_height")
pad15 = doc.addObject("PartDesign::Pad", "Pad014")
body15.addObject(pad15)
pad15.Profile = sketch15
pad15.setExpression("Length", "Params.pad15_length")
doc.recompute()

boolean10 = doc.addObject("PartDesign::Boolean", "Boolean009")
body15.addObject(boolean10)
boolean10.Type = "Fuse"
boolean10.addObjects([body11])
doc.recompute()

boolean11 = doc.addObject("PartDesign::Boolean", "Boolean010")
body15.addObject(boolean11)
boolean11.Type = "Fuse"
boolean11.addObjects([body12])
doc.recompute()

boolean12 = doc.addObject("PartDesign::Boolean", "Boolean011")
body15.addObject(boolean12)
boolean12.Type = "Fuse"
boolean12.addObjects([body13])
doc.recompute()

boolean13 = doc.addObject("PartDesign::Boolean", "Boolean012")
body15.addObject(boolean13)
boolean13.Type = "Fuse"
boolean13.addObjects([body14])
body16 = doc.addObject("PartDesign::Body", "Body015")

# Sketch on XY plane
sketch16 = doc.addObject("Sketcher::SketchObject", "Sketch015")
body16.addObject(sketch16)
sketch16.AttachmentSupport = (doc.getObject("XY_Plane015"), [""])
sketch16.MapMode = "FlatFace"
sketch16.AttachmentOffset = App.Placement(V(0, 0, 1.6), App.Rotation())
add_polygon(sketch16, [(1.2, -13.2), (1.2, -28.8), (51.8, -28.8), (51.8, -13.2)])  # lines 0-3
sketch16.addConstraint(Sketcher.Constraint("Vertical", 0))
sketch16.addConstraint(Sketcher.Constraint("Horizontal", 1))
sketch16.addConstraint(Sketcher.Constraint("Vertical", 2))
sketch16.addConstraint(Sketcher.Constraint("Horizontal", 3))
sketch16.addConstraint(Sketcher.Constraint("DistanceX", 1, 1, 1, 2, 50.6))
sketch16.addConstraint(Sketcher.Constraint("DistanceY", 0, 2, 0, 1, 15.6))
sketch16.addConstraint(Sketcher.Constraint("DistanceX", -1, 1, 0, 2, 1.2))
sketch16.addConstraint(Sketcher.Constraint("DistanceY", 0, 2, -1, 1, 28.8))
sketch16.setExpression("Constraints[8]", "Params.sketch16_width")
sketch16.setExpression("Constraints[9]", "Params.sketch16_height")
pad16 = doc.addObject("PartDesign::Pad", "Pad015")
body16.addObject(pad16)
pad16.Profile = sketch16
pad16.setExpression("Length", "Params.pad16_length")
body17 = doc.addObject("PartDesign::Body", "Body016")

# Sketch on XY plane
sketch17 = doc.addObject("Sketcher::SketchObject", "Sketch016")
body17.addObject(sketch17)
sketch17.AttachmentSupport = (doc.getObject("XY_Plane016"), [""])
sketch17.MapMode = "FlatFace"
sketch17.AttachmentOffset = App.Placement(V(0, 0, 1.6), App.Rotation())
add_polygon(sketch17, [(0, -12), (0, -30), (53, -30), (53, -12)])  # lines 0-3
sketch17.addConstraint(Sketcher.Constraint("Vertical", 0))
sketch17.addConstraint(Sketcher.Constraint("Horizontal", 1))
sketch17.addConstraint(Sketcher.Constraint("Vertical", 2))
sketch17.addConstraint(Sketcher.Constraint("Horizontal", 3))
sketch17.addConstraint(Sketcher.Constraint("PointOnObject", 0, 2, -2))
sketch17.addConstraint(Sketcher.Constraint("DistanceX", 1, 1, 1, 2, 53.0))
sketch17.addConstraint(Sketcher.Constraint("DistanceY", 0, 2, 0, 1, 18.0))
sketch17.addConstraint(Sketcher.Constraint("DistanceY", 0, 2, -1, 1, 30.0))
sketch17.setExpression("Constraints[9]", "Params.sketch17_width")
sketch17.setExpression("Constraints[10]", "Params.sketch17_height")
pad17 = doc.addObject("PartDesign::Pad", "Pad016")
body17.addObject(pad17)
pad17.Profile = sketch17
pad17.setExpression("Length", "Params.pad17_length")
doc.recompute()

boolean14 = doc.addObject("PartDesign::Boolean", "Boolean013")
body17.addObject(boolean14)
boolean14.Type = "Cut"
boolean14.addObjects([body16])
body18 = doc.addObject("PartDesign::Body", "Body017")

# Sketch on XY plane
sketch18 = doc.addObject("Sketcher::SketchObject", "Sketch017")
body18.addObject(sketch18)
sketch18.AttachmentSupport = (doc.getObject("XY_Plane017"), [""])
sketch18.MapMode = "FlatFace"
sketch18.AttachmentOffset = App.Placement(V(0, 0, 2.8), App.Rotation())
add_polygon(sketch18, [(-1.6, -16.5), (-1.6, -25.5), (0, -25.5), (0, -16.5)])  # lines 0-3
sketch18.addConstraint(Sketcher.Constraint("Vertical", 0))
sketch18.addConstraint(Sketcher.Constraint("Horizontal", 1))
sketch18.addConstraint(Sketcher.Constraint("Vertical", 2))
sketch18.addConstraint(Sketcher.Constraint("Horizontal", 3))
sketch18.addConstraint(Sketcher.Constraint("PointOnObject", 1, 2, -2))
sketch18.addConstraint(Sketcher.Constraint("DistanceY", 0, 2, 0, 1, 9.0))
sketch18.addConstraint(Sketcher.Constraint("DistanceX", 1, 1, 1, 2, 1.6))
sketch18.addConstraint(Sketcher.Constraint("DistanceY", 0, 2, -1, 1, 25.5))
sketch18.setExpression("Constraints[9]", "Params.sketch18_height")
sketch18.setExpression("Constraints[10]", "Params.sketch18_width")
pad18 = doc.addObject("PartDesign::Pad", "Pad017")
body18.addObject(pad18)
pad18.Profile = sketch18
pad18.setExpression("Length", "Params.pad18_length")
body19 = doc.addObject("PartDesign::Body", "Body018")

# Sketch on XY plane
sketch19 = doc.addObject("Sketcher::SketchObject", "Sketch018")
body19.addObject(sketch19)
sketch19.AttachmentSupport = (doc.getObject("XY_Plane018"), [""])
sketch19.MapMode = "FlatFace"
sketch19.AttachmentOffset = App.Placement(V(0, 0, 2.8), App.Rotation())
add_polygon(sketch19, [(53, -16.5), (53, -25.5), (54.6, -25.5), (54.6, -16.5)])  # lines 0-3
sketch19.addConstraint(Sketcher.Constraint("Vertical", 0))
sketch19.addConstraint(Sketcher.Constraint("Horizontal", 1))
sketch19.addConstraint(Sketcher.Constraint("Vertical", 2))
sketch19.addConstraint(Sketcher.Constraint("Horizontal", 3))
sketch19.addConstraint(Sketcher.Constraint("DistanceY", 0, 2, 0, 1, 9.0))
sketch19.addConstraint(Sketcher.Constraint("DistanceX", 1, 1, 1, 2, 1.6))
sketch19.addConstraint(Sketcher.Constraint("DistanceX", -1, 1, 0, 2, 53.0))
sketch19.addConstraint(Sketcher.Constraint("DistanceY", 0, 2, -1, 1, 25.5))
sketch19.setExpression("Constraints[8]", "Params.sketch19_height")
sketch19.setExpression("Constraints[9]", "Params.sketch19_width")
pad19 = doc.addObject("PartDesign::Pad", "Pad018")
body19.addObject(pad19)
pad19.Profile = sketch19
pad19.setExpression("Length", "Params.pad19_length")
body20 = doc.addObject("PartDesign::Body", "Body019")

# Sketch on XY plane
sketch20 = doc.addObject("Sketcher::SketchObject", "Sketch019")
body20.addObject(sketch20)
sketch20.AttachmentSupport = (doc.getObject("XY_Plane019"), [""])
sketch20.MapMode = "FlatFace"
sketch20.AttachmentOffset = App.Placement(V(0, 0, 1.6), App.Rotation())
add_polygon(sketch20, [(0, -12), (0, -30), (53, -30), (53, -12)])  # lines 0-3
sketch20.addConstraint(Sketcher.Constraint("Vertical", 0))
sketch20.addConstraint(Sketcher.Constraint("Horizontal", 1))
sketch20.addConstraint(Sketcher.Constraint("Vertical", 2))
sketch20.addConstraint(Sketcher.Constraint("Horizontal", 3))
sketch20.addConstraint(Sketcher.Constraint("PointOnObject", 0, 2, -2))
sketch20.addConstraint(Sketcher.Constraint("DistanceX", 1, 1, 1, 2, 53.0))
sketch20.addConstraint(Sketcher.Constraint("DistanceY", 0, 2, 0, 1, 18.0))
sketch20.addConstraint(Sketcher.Constraint("DistanceY", 0, 2, -1, 1, 30.0))
sketch20.setExpression("Constraints[9]", "Params.sketch20_width")
sketch20.setExpression("Constraints[10]", "Params.sketch20_height")
pad20 = doc.addObject("PartDesign::Pad", "Pad019")
body20.addObject(pad20)
pad20.Profile = sketch20
pad20.setExpression("Length", "Params.pad20_length")
body21 = doc.addObject("PartDesign::Body", "Body020")

# Sketch on XY plane
sketch21 = doc.addObject("Sketcher::SketchObject", "Sketch020")
body21.addObject(sketch21)
sketch21.AttachmentSupport = (doc.getObject("XY_Plane020"), [""])
sketch21.MapMode = "FlatFace"
add_polygon(sketch21, [(-1.6, -10.4), (-1.6, -31.6), (54.6, -31.6), (54.6, -10.4)])  # lines 0-3
sketch21.addConstraint(Sketcher.Constraint("Vertical", 0))
sketch21.addConstraint(Sketcher.Constraint("Horizontal", 1))
sketch21.addConstraint(Sketcher.Constraint("Vertical", 2))
sketch21.addConstraint(Sketcher.Constraint("Horizontal", 3))
sketch21.addConstraint(Sketcher.Constraint("DistanceX", 1, 1, 1, 2, 56.2))
sketch21.addConstraint(Sketcher.Constraint("DistanceY", 0, 2, 0, 1, 21.2))
sketch21.addConstraint(Sketcher.Constraint("DistanceX", 0, 2, -1, 1, 1.6))
sketch21.addConstraint(Sketcher.Constraint("DistanceY", 0, 2, -1, 1, 31.6))
sketch21.setExpression("Constraints[8]", "Params.sketch21_width")
sketch21.setExpression("Constraints[9]", "Params.sketch21_height")
pad21 = doc.addObject("PartDesign::Pad", "Pad020")
body21.addObject(pad21)
pad21.Profile = sketch21
pad21.setExpression("Length", "Params.pad21_length")
doc.recompute()

boolean15 = doc.addObject("PartDesign::Boolean", "Boolean014")
body21.addObject(boolean15)
boolean15.Type = "Cut"
boolean15.addObjects([body20])
doc.recompute()

fillet6 = doc.addObject("PartDesign::Fillet", "Fillet005")
body21.addObject(fillet6)
fillet6.Base = (boolean15, edges_at(boolean15, [
    (-1.6, -31.6, 1.4),
    (-1.6, -10.4, 1.4),
    (-1.6, -21, 0),
    (26.5, -31.6, 0),
    (54.6, -31.6, 1.4),
    (26.5, -10.4, 0),
    (54.6, -10.4, 1.4),
    (54.6, -21, 0),
]))
fillet6.setExpression("Radius", "Params.fillet6_radius")
doc.recompute()

boolean16 = doc.addObject("PartDesign::Boolean", "Boolean015")
body21.addObject(boolean16)
boolean16.Type = "Fuse"
boolean16.addObjects([body17])
doc.recompute()

boolean17 = doc.addObject("PartDesign::Boolean", "Boolean016")
body21.addObject(boolean17)
boolean17.Type = "Fuse"
boolean17.addObjects([body18])
doc.recompute()

boolean18 = doc.addObject("PartDesign::Boolean", "Boolean017")
body21.addObject(boolean18)
boolean18.Type = "Fuse"
boolean18.addObjects([body19])
doc.recompute()

boolean19 = doc.addObject("PartDesign::Boolean", "Boolean018")
body21.addObject(boolean19)
boolean19.Type = "Cut"
boolean19.addObjects([body15])
doc.recompute()

chamfer4 = doc.addObject("PartDesign::Chamfer", "Chamfer003")
body21.addObject(chamfer4)
chamfer4.Base = (boolean19, edges_at(boolean19, [
    (25.3, -16.1, 0),
    (12.5, -21, 0),
    (25.3, -25.9, 0),
    (38.1, -21, 0),
]))
chamfer4.setExpression("Size", "Params.chamfer4_size")
doc.recompute()

fillet7 = doc.addObject("PartDesign::Fillet", "Fillet006")
body21.addObject(fillet7)
fillet7.Base = (chamfer4, edges_at(chamfer4, [
    (0, -30, 4.55),
    (53, -30, 4.55),
    (53, -12, 4.55),
    (0, -12, 4.55),
]))
fillet7.setExpression("Radius", "Params.fillet7_radius")

doc.recompute()
